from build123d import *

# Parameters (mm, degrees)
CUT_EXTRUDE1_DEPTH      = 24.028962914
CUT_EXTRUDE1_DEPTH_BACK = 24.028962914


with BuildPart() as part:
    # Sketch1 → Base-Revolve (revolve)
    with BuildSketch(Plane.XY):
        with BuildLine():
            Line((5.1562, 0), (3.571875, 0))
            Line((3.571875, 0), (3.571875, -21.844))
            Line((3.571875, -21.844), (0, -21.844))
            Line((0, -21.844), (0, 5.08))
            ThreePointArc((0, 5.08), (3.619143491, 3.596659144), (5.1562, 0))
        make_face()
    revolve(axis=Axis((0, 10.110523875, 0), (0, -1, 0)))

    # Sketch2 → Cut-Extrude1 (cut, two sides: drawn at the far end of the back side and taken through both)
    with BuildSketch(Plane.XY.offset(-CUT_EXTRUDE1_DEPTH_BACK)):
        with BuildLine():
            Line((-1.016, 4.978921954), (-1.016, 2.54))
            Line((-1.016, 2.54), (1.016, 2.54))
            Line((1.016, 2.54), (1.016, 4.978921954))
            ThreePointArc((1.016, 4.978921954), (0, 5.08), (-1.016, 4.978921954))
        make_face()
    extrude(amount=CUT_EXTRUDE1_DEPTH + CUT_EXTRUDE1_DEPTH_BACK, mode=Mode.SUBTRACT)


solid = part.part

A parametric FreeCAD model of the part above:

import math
import FreeCAD as App
import Part
import Sketcher

V = App.Vector
Q = App.Units.Quantity

doc = App.newDocument("Part")
params = doc.addObject("Spreadsheet::Sheet", "Params")
for row, (alias, value) in enumerate([
    ("sketch1_height", "1.06 in"),
    ("sketch1_height2", "0.86 in"),
    ("sketch1_width", "0.140625 in"),
    ("revolution_angle", "360 deg"),
    ("sketch2_width", "0.08 in"),
], start=1):
    params.set(f"A{row}", alias)
    params.set(f"B{row}", "=" + value)
    params.setAlias(f"B{row}", alias)

body = doc.addObject("PartDesign::Body", "Body")

sketch1 = body.newObject("Sketcher::SketchObject", "Sketch")
sketch1.AttachmentSupport = (doc.getObject("XY_Plane"), [""])
sketch1.MapMode = "FlatFace"
sketch1.addGeometry(Part.LineSegment(V(3.6, 0, 0), V(5.2, 0, 0)), False)
sketch1.addGeometry(Part.ArcOfCircle(Part.Circle(V(0, -0.1, 0), V(0, 0, 1), 5.2), math.radians(1), math.radians(90)), False)
sketch1.addGeometry(Part.LineSegment(V(0, 5.1, 0), V(0, -21.8, 0)), False)
sketch1.addGeometry(Part.LineSegment(V(0, -21.8, 0), V(3.6, -21.8, 0)), False)
sketch1.addGeometry(Part.LineSegment(V(3.6, -21.8, 0), V(3.6, 0, 0)), False)
sketch1.addConstraint(Sketcher.Constraint("Coincident", 0, 2, 1, 1))
sketch1.addConstraint(Sketcher.Constraint("Coincident", 1, 2, 2, 1))
sketch1.addConstraint(Sketcher.Constraint("Coincident", 2, 2, 3, 1))
sketch1.addConstraint(Sketcher.Constraint("Coincident", 3, 2, 4, 1))
sketch1.addConstraint(Sketcher.Constraint("Coincident", 4, 2, 0, 1))
sketch1.addConstraint(Sketcher.Constraint("Horizontal", 0))
sketch1.addConstraint(Sketcher.Constraint("Vertical", 2))
sketch1.addConstraint(Sketcher.Constraint("Horizontal", 3))
sketch1.addConstraint(Sketcher.Constraint("Vertical", 4))
sketch1.addConstraint(Sketcher.Constraint("PointOnObject", 1, 3, -2))
sketch1.addConstraint(Sketcher.Constraint("PointOnObject", 0, 2, -1))
sketch1.addConstraint(Sketcher.Constraint("PointOnObject", 1, 2, -2))
sketch1.addConstraint(Sketcher.Constraint("DistanceY", 2, 2, 2, 1, Q("1.06 in")))
sketch1.addConstraint(Sketcher.Constraint("DistanceY", 4, 1, 4, 2, Q("0.86 in")))
sketch1.addConstraint(Sketcher.Constraint("DistanceX", 3, 1, 3, 2, Q("0.140625 in")))
sketch1.addConstraint(Sketcher.Constraint("DistanceX", -1, 1, 0, 2, Q("0.203 in")))
sketch1.setExpression("Constraints[12]", "Params.sketch1_height")
sketch1.setExpression("Constraints[13]", "Params.sketch1_height2")
sketch1.setExpression("Constraints[14]", "Params.sketch1_width")
revolution = body.newObject("PartDesign::Revolution", "Revolution")
revolution.Profile = sketch1
revolution.ReferenceAxis = (sketch1, ["V_Axis"])
revolution.setExpression("Angle", "Params.revolution_angle")

sketch2 = body.newObject("Sketcher::SketchObject", "Sketch001")
sketch2.AttachmentSupport = (doc.getObject("XY_Plane"), [""])
sketch2.MapMode = "FlatFace"
sketch2.addGeometry(Part.LineSegment(V(-1, 5, 0), V(-1, 2.5, 0)), False)
sketch2.addGeometry(Part.LineSegment(V(-1, 2.5, 0), V(1, 2.5, 0)), False)
sketch2.addGeometry(Part.LineSegment(V(1, 2.5, 0), V(1, 5, 0)), False)
sketch2.addGeometry(Part.ArcOfCircle(Part.Circle(V(0, -0.1, 0), V(0, 0, 1), 5.2), math.radians(79), math.radians(101)), False)
sketch2.addConstraint(Sketcher.Constraint("Coincident", 0, 2, 1, 1))
sketch2.addConstraint(Sketcher.Constraint("Coincident", 1, 2, 2, 1))
sketch2.addConstraint(Sketcher.Constraint("Coincident", 2, 2, 3, 1))
sketch2.addConstraint(Sketcher.Constraint("Coincident", 3, 2, 0, 1))
sketch2.addConstraint(Sketcher.Constraint("Vertical", 0))
sketch2.addConstraint(Sketcher.Constraint("Horizontal", 1))
sketch2.addConstraint(Sketcher.Constraint("Vertical", 2))
sketch2.addConstraint(Sketcher.Constraint("Symmetric", 2, 2, 3, 2, -2))
sketch2.addConstraint(Sketcher.Constraint("DistanceX", 1, 1, 1, 2, Q("0.08 in")))
sketch2.addConstraint(Sketcher.Constraint("DistanceY", -1, 1, 0, 2, Q("0.1 in")))
sketch2.addConstraint(Sketcher.Constraint("Radius", 3, Q("5.156771 mm")))
sketch2.addConstraint(Sketcher.Constraint("DistanceY", 0, 2, 0, 1, Q("2.438922 mm")))
sketch2.setExpression("Constraints[8]", "Params.sketch2_width")
pocket1 = body.newObject("PartDesign::Pocket", "Pocket")
pocket1.Profile = sketch2
pocket1.Type = "ThroughAll"
pocket1.Midplane = True

doc.recompute()
